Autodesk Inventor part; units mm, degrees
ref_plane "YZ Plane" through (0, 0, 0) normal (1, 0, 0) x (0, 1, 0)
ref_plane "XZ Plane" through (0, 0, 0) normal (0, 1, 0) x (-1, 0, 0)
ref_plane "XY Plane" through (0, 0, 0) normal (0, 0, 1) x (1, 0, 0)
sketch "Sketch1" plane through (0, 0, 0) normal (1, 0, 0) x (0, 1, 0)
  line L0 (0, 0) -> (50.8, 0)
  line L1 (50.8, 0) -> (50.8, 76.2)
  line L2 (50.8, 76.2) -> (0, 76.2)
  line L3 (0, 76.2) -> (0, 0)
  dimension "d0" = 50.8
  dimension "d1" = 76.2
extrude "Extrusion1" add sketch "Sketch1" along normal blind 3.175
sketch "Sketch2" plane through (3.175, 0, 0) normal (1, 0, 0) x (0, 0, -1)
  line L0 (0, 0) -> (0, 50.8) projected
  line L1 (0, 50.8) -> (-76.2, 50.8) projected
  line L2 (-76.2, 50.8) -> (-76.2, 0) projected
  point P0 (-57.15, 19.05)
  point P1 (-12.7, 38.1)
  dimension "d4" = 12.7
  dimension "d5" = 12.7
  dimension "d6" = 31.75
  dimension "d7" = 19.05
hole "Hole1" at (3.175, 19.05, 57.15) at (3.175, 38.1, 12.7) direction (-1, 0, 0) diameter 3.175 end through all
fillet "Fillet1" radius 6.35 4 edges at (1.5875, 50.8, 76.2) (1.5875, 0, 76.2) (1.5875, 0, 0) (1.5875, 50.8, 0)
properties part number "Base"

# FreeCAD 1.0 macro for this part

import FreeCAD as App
import Part
import Sketcher
from FreeCAD import Vector
Q = App.Units.Quantity


def edges_at(feature, points):
    """Names of the edges that pass closest to the given points."""
    edges = feature.Shape.Edges
    near = lambda p: min(range(len(edges)), key=lambda i: edges[i].distToShape(Part.Vertex(*p))[0])
    return sorted({f"Edge{near(p) + 1}" for p in points})

doc = App.newDocument("Part")
body = doc.addObject("PartDesign::Body", "Body")

sketch1 = body.newObject("Sketcher::SketchObject", "Sketch")
sketch1.AttachmentSupport = (doc.getObject("YZ_Plane"), [""])
sketch1.MapMode = "FlatFace"
sketch1.addGeometry([
    Part.LineSegment(Vector(0, 76, 0), Vector(0, 0, 0)),
    Part.LineSegment(Vector(0, 0, 0), Vector(51, 0, 0)),
    Part.LineSegment(Vector(51, 0, 0), Vector(51, 76, 0)),
    Part.LineSegment(Vector(51, 76, 0), Vector(0, 76, 0)),
], False)
sketch1.addConstraint([
    Sketcher.Constraint("Coincident", 0, 2, 1, 1),
    Sketcher.Constraint("Coincident", 1, 2, 2, 1),
    Sketcher.Constraint("Coincident", 2, 2, 3, 1),
    Sketcher.Constraint("Coincident", 3, 2, 0, 1),
    Sketcher.Constraint("Vertical", 0),
    Sketcher.Constraint("Horizontal", 1),
    Sketcher.Constraint("Vertical", 2),
    Sketcher.Constraint("Horizontal", 3),
    Sketcher.Constraint("Coincident", 0, 2, -1, 1),
    Sketcher.Constraint("DistanceX", 1, 1, 1, 2, Q("2 in")),
    Sketcher.Constraint("DistanceY", 0, 2, 0, 1, Q("3 in")),
])
pad1 = body.newObject("PartDesign::Pad", "Pad")
pad1.Profile = sketch1
pad1.Length = Q("0.125 in")

sketch2 = body.newObject("Sketcher::SketchObject", "Sketch001")
sketch2.AttachmentSupport = (doc.getObject("YZ_Plane"), [""])
sketch2.MapMode = "FlatFace"
sketch2.AttachmentOffset = App.Placement(Vector(0, 0, 0.125 * 25.4), App.Rotation())
sketch2.addGeometry([
    Part.Circle(Vector(19.1, 57.1, 0), Vector(0, 0, 1), 1.6),
    Part.Circle(Vector(38.1, 12.7, 0), Vector(0, 0, 1), 1.6),
], False)
sketch2.addConstraint([
    Sketcher.Constraint("Equal", 0, 1),
    Sketcher.Constraint("Diameter", 0, Q("0.125 in")),
    Sketcher.Constraint("DistanceX", -1, 1, 1, 3, Q("1.5 in")),
    Sketcher.Constraint("DistanceY", -1, 1, 1, 3, Q("0.5 in")),
    Sketcher.Constraint("DistanceX", -1, 1, 0, 3, Q("0.75 in")),
    Sketcher.Constraint("DistanceY", -1, 1, 0, 3, Q("2.25 in")),
])
doc.recompute()
hole = body.newObject("PartDesign::Hole", "Hole")
hole.Profile = sketch2
hole.ThreadType = "None"
hole.Diameter = Q("0.125 in")
hole.DepthType = "ThroughAll"
doc.recompute()

fillet = body.newObject("PartDesign::Fillet", "Fillet")
fillet.Base = (hole, edges_at(hole, [
    (1.587, 50.8, 76.2),
    (1.587, 0, 76.2),
    (1.587, 0, 0),
    (1.587, 50.8, 0),
]))
fillet.Radius = Q("0.25 in")

doc.recompute()
